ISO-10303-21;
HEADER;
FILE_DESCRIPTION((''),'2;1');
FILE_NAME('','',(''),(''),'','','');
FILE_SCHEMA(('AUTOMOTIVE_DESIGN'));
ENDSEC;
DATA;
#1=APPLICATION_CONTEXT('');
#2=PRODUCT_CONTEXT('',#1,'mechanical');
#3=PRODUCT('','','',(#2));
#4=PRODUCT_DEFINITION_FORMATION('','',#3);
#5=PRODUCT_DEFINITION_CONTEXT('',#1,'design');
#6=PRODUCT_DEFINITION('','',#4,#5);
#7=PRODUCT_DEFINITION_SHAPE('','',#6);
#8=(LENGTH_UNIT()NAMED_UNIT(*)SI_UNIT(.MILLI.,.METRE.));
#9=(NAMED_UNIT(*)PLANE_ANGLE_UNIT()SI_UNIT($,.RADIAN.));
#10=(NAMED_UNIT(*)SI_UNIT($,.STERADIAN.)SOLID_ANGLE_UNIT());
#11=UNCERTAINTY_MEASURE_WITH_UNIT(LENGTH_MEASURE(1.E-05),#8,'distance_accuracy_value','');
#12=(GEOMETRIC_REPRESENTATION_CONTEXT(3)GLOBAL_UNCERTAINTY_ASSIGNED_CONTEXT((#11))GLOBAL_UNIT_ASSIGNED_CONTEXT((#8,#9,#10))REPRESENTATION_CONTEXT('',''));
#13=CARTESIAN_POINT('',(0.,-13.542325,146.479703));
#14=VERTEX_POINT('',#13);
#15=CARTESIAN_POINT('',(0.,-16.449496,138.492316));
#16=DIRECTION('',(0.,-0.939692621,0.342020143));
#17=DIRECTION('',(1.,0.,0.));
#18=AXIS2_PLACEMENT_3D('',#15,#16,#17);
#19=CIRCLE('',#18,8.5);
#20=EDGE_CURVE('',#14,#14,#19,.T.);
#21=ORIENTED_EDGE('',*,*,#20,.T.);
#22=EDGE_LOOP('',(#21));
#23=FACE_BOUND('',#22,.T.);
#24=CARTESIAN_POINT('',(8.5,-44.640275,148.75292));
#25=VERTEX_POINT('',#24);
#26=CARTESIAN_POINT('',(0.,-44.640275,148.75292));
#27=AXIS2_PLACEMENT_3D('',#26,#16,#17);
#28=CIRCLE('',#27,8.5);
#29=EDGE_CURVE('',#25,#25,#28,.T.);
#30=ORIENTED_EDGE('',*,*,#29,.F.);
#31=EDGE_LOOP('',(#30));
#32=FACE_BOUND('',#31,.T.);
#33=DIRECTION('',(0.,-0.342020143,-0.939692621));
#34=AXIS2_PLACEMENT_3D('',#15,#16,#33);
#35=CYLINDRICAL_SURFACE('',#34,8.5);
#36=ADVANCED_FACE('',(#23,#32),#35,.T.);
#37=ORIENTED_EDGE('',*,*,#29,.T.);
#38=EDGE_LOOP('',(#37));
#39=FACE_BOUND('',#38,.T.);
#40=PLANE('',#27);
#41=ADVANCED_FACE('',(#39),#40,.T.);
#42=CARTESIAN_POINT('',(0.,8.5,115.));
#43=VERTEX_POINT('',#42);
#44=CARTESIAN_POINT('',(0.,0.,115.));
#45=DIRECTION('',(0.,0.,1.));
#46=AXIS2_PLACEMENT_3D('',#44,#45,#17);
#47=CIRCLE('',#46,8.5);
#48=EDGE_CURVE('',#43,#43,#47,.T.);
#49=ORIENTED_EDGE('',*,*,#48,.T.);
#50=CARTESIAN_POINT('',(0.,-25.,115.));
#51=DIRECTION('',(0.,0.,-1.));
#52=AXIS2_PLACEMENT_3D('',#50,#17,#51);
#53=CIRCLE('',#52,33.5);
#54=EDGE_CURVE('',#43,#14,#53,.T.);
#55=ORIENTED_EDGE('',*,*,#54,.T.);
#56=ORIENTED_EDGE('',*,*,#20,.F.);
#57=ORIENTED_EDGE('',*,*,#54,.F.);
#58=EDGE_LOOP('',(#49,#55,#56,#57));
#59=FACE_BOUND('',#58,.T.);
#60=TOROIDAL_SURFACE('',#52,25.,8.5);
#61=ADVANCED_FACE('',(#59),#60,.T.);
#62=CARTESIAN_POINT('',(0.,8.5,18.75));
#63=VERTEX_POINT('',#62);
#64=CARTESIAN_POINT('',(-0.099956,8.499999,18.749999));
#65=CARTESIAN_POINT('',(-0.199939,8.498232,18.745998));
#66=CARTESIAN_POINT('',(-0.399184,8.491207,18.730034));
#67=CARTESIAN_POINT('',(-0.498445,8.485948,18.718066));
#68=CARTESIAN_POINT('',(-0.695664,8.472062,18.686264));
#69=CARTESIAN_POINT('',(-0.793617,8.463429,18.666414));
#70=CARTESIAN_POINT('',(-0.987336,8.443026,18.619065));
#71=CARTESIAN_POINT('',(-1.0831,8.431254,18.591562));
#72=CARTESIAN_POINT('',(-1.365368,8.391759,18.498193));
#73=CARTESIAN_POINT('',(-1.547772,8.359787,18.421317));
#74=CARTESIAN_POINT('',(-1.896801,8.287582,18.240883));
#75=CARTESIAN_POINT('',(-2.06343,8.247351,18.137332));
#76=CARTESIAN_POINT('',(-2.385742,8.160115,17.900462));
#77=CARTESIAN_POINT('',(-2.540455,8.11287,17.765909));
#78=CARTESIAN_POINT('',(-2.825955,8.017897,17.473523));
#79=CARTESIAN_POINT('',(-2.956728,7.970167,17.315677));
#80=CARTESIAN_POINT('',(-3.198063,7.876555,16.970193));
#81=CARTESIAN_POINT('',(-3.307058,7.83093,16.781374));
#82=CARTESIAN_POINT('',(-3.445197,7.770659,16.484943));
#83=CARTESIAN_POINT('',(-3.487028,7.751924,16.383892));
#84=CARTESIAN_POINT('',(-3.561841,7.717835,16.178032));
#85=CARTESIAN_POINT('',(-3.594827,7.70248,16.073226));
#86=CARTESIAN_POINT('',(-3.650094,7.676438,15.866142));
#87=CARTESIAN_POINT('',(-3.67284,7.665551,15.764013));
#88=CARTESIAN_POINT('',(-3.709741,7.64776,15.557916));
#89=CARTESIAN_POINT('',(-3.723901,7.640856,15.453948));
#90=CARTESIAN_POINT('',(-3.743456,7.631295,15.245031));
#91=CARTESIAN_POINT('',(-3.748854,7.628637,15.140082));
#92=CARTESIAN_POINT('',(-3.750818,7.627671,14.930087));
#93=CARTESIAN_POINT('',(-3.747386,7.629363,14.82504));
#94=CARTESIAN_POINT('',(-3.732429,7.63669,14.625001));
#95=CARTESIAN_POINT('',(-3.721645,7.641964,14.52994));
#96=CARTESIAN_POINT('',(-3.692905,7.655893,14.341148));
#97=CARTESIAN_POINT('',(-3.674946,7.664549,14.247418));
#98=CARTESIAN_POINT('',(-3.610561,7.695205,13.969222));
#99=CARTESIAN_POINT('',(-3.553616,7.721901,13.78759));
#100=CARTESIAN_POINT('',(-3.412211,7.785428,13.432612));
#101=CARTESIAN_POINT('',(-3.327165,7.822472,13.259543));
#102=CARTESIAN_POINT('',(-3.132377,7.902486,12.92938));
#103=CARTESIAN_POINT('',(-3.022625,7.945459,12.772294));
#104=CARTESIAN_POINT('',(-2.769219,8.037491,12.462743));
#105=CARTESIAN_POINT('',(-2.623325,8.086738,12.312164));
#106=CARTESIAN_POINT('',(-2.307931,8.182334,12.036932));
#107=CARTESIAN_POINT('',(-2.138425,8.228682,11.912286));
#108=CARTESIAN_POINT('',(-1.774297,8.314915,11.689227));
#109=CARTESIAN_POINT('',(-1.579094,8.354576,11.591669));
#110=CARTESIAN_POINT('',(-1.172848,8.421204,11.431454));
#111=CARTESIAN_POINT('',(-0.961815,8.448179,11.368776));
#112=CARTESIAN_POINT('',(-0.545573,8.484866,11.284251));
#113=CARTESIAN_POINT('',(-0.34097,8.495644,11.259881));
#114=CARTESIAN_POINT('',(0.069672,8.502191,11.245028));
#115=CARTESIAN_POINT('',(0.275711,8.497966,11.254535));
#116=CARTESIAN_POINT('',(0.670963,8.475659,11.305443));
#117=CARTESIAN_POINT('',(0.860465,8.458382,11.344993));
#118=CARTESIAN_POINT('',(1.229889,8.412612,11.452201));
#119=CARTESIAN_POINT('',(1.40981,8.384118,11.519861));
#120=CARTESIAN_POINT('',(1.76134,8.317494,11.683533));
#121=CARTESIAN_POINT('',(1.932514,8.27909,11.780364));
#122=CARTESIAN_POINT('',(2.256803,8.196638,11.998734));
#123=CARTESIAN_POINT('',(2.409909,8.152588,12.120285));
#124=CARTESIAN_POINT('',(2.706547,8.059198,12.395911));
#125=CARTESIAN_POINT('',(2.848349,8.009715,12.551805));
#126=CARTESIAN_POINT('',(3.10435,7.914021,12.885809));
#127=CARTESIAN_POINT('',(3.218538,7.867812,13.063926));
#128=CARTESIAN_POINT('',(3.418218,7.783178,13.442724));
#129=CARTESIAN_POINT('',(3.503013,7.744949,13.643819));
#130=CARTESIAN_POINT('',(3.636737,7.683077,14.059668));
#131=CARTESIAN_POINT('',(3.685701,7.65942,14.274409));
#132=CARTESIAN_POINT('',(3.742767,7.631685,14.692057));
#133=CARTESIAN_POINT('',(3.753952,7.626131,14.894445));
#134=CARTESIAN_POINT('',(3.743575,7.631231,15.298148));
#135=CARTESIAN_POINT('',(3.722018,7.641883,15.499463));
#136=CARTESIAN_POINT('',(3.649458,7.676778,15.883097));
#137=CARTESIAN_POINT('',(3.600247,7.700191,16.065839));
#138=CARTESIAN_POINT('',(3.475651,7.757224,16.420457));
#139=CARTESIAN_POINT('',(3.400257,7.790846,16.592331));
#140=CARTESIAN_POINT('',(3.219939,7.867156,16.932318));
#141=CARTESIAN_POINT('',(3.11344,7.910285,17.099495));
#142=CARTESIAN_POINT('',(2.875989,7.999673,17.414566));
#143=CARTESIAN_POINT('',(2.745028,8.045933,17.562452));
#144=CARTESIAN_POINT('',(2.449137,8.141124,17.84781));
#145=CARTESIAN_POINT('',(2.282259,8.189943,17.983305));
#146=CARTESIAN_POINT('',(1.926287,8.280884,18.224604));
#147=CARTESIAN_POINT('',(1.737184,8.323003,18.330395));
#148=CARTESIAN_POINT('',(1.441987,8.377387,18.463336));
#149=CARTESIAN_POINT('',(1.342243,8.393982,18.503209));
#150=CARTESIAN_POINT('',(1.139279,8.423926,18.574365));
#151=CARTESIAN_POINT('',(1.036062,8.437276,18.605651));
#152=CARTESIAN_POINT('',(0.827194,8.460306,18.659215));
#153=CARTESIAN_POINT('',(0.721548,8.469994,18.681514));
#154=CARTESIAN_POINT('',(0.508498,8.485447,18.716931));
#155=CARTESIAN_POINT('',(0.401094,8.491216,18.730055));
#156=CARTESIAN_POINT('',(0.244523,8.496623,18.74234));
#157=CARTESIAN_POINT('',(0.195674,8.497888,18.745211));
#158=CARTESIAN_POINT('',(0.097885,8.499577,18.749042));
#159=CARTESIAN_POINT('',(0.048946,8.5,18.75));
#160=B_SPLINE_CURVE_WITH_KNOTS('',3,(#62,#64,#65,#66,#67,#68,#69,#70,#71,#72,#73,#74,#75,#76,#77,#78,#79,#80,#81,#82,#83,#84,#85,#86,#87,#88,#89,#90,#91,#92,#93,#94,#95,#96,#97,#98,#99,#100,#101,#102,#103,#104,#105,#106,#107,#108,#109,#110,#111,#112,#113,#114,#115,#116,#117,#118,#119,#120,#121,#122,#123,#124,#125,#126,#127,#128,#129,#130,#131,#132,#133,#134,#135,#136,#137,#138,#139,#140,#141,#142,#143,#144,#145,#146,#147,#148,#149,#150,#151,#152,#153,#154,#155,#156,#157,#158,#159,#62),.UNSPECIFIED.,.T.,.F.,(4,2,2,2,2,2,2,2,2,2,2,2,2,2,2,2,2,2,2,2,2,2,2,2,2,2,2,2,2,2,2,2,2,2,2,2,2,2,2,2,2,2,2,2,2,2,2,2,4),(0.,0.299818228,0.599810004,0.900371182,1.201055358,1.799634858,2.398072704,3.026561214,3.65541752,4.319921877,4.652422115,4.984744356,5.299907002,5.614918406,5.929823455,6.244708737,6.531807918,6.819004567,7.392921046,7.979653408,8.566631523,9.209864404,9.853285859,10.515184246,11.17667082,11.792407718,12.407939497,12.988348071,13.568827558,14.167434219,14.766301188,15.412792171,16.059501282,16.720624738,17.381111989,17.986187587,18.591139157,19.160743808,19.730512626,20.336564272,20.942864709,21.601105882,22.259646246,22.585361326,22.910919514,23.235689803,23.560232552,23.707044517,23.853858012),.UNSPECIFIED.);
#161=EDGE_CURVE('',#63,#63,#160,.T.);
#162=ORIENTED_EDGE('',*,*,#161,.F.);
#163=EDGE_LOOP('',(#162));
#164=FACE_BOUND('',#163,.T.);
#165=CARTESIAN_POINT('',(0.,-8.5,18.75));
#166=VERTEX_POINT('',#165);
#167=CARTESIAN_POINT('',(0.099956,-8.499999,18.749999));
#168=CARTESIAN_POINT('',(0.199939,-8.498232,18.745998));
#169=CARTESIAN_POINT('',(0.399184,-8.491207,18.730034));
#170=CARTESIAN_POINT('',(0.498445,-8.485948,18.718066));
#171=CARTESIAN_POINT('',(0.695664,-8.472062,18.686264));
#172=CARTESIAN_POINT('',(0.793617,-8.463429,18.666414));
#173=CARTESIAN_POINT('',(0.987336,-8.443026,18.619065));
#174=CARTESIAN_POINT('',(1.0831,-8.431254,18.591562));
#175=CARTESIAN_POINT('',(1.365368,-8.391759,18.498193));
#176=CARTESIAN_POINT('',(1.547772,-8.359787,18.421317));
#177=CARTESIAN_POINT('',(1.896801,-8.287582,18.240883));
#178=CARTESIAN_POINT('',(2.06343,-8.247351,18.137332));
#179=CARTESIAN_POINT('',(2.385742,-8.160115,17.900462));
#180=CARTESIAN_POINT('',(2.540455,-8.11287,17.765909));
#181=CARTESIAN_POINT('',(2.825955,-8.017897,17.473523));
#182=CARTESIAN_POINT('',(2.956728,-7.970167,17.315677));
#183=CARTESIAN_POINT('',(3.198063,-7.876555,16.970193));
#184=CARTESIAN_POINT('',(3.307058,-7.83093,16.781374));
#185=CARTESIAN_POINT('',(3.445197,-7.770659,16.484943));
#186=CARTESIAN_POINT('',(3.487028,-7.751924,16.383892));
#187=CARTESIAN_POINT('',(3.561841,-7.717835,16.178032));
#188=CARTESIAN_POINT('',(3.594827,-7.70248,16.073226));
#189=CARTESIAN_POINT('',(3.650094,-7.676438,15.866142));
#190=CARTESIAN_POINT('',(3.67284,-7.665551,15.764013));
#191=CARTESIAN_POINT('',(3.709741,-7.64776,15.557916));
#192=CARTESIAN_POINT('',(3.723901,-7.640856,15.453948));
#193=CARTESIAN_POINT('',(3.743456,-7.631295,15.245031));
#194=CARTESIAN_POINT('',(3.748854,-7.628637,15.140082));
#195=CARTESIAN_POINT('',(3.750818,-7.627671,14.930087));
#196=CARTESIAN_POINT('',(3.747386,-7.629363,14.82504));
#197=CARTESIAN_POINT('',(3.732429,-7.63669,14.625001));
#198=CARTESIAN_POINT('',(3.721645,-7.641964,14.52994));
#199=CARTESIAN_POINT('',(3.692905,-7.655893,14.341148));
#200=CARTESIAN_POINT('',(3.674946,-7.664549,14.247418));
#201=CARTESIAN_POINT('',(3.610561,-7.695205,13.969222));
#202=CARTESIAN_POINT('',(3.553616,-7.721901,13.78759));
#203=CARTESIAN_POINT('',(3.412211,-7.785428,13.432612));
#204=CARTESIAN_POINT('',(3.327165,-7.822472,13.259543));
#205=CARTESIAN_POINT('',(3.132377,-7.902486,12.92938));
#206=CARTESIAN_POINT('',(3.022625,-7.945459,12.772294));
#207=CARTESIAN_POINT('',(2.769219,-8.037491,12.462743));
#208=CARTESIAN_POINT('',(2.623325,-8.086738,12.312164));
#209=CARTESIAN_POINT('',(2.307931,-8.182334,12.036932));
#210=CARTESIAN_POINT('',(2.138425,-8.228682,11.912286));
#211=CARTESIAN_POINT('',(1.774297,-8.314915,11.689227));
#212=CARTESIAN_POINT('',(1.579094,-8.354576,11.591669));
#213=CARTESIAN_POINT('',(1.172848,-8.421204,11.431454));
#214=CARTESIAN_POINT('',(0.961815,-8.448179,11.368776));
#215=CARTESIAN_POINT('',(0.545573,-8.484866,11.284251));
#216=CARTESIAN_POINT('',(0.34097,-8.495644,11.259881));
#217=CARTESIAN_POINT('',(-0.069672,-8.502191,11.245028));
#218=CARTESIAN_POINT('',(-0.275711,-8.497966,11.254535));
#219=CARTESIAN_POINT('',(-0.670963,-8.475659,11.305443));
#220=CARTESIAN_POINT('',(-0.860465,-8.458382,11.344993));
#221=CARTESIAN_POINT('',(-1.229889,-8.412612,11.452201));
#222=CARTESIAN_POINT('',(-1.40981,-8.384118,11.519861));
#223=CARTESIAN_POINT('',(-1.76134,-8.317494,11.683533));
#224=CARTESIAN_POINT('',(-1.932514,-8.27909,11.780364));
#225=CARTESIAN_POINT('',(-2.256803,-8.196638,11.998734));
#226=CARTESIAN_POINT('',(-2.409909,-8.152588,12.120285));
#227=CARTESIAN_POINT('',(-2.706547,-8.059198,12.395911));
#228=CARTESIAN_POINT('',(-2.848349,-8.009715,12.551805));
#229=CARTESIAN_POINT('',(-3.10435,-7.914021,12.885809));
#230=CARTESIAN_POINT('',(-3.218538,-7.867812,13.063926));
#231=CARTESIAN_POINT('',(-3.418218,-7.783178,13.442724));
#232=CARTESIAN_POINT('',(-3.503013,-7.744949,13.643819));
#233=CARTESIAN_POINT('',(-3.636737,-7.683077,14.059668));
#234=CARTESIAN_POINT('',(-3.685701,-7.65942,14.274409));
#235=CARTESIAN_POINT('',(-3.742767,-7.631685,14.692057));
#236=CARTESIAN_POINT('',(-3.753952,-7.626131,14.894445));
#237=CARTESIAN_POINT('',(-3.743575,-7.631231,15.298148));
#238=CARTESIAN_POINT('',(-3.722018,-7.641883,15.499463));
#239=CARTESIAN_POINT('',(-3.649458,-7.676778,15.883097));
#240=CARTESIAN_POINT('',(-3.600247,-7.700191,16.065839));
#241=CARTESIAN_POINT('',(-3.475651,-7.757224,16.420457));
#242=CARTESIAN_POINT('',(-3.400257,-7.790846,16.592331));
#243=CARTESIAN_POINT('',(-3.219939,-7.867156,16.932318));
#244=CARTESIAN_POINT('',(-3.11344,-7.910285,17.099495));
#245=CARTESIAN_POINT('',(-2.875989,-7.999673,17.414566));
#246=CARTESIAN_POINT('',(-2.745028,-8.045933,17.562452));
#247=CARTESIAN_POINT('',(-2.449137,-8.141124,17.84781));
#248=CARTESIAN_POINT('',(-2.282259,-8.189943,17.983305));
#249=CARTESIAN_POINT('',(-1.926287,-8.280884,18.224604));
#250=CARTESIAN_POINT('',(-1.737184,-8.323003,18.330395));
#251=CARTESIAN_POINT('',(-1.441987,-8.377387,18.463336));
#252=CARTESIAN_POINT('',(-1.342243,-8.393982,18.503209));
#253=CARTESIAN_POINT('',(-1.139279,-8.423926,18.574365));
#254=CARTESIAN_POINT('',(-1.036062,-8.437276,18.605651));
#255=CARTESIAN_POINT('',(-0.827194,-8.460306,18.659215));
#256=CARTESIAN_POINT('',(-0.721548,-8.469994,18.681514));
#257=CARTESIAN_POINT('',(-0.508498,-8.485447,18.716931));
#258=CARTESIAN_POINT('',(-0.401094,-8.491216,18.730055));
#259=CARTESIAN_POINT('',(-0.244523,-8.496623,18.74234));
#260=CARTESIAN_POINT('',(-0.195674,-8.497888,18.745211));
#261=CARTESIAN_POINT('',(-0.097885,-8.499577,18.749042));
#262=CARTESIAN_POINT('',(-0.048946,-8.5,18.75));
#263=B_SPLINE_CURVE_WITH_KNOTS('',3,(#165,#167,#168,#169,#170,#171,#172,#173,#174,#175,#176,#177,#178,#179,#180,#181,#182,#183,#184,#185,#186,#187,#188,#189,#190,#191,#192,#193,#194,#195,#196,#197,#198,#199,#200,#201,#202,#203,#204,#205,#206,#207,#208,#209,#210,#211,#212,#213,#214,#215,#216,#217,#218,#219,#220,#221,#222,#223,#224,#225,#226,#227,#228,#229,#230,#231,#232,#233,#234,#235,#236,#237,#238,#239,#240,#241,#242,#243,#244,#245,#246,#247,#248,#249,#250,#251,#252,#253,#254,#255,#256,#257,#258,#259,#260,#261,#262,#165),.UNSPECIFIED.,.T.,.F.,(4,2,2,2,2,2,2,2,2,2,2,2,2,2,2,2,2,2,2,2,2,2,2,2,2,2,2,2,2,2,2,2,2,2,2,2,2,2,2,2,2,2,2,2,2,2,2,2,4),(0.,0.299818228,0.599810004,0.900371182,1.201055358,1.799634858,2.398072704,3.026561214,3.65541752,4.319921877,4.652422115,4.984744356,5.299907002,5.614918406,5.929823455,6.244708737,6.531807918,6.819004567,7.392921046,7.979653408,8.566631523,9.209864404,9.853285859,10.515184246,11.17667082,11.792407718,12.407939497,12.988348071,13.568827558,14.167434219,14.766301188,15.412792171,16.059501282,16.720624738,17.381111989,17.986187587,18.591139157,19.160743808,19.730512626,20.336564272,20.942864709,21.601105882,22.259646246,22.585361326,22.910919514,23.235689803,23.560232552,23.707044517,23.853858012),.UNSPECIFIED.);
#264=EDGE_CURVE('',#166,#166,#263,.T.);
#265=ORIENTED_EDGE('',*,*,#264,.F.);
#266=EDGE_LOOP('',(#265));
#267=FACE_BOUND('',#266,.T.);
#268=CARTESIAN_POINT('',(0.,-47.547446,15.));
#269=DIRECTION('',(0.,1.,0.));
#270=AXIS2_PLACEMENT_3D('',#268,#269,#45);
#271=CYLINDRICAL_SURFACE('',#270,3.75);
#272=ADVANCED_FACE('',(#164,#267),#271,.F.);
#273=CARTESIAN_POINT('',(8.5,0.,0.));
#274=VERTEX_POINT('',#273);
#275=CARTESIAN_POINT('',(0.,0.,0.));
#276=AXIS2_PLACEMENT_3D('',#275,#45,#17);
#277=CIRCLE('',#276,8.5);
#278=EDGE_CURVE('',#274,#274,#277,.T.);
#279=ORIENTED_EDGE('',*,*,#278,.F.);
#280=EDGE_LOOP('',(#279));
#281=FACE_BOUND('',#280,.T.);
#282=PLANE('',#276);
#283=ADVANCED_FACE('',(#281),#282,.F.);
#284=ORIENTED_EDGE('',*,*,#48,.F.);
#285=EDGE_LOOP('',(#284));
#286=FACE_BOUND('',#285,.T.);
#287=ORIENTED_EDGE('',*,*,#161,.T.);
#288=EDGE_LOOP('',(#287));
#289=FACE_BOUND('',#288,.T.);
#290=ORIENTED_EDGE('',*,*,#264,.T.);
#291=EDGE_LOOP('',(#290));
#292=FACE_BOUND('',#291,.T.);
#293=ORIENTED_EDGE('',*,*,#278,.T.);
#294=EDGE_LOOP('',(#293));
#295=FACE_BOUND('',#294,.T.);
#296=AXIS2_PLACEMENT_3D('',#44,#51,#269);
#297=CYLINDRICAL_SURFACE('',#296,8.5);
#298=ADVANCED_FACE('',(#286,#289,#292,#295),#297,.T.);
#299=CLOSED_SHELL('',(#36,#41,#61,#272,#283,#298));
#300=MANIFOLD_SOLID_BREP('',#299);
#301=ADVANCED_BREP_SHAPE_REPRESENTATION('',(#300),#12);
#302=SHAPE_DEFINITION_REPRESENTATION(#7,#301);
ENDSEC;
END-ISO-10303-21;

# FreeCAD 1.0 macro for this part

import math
import FreeCAD as App
import Part
import Sketcher
from FreeCAD import Vector
Q = App.Units.Quantity

doc = App.newDocument("Part")
body = doc.addObject("PartDesign::Body", "Body")

# Sketch on XY plane
sketch1 = body.newObject("Sketcher::SketchObject", "Sketch")
sketch1.AttachmentSupport = (doc.getObject("XY_Plane"), [""])
sketch1.MapMode = "FlatFace"
sketch1.addGeometry(Part.Circle(Vector(0, 0, 0), Vector(0, 0, 1), 8), False)
sketch1.addConstraint([
    Sketcher.Constraint("Coincident", 0, 3, -1, 1),
    Sketcher.Constraint("Diameter", 0, Q("17 mm")),
])

# Sketch on YZ plane
sketch2 = body.newObject("Sketcher::SketchObject", "Sketch001")
sketch2.AttachmentSupport = (doc.getObject("YZ_Plane"), [""])
sketch2.MapMode = "FlatFace"
sketch2.addGeometry([
    Part.LineSegment(Vector(0, 0, 0), Vector(0, 115, 0)),
    Part.ArcOfCircle(Part.Circle(Vector(-25, 115, 0), Vector(0, 0, 1), 25), math.radians(0), math.radians(70)),
    Part.LineSegment(Vector(-16, 138, 0), Vector(-45, 149, 0)),
], False)
sketch2.addConstraint([
    Sketcher.Constraint("Tangent", 0, 2, 1, 1),
    Sketcher.Constraint("Tangent", 1, 2, 2, 1),
    Sketcher.Constraint("Vertical", 0),
    Sketcher.Constraint("Coincident", 0, 1, -1, 1),
    Sketcher.Constraint("Radius", 1, Q("25 mm")),
    Sketcher.Constraint("DistanceY", 0, 1, 0, 2, Q("115 mm")),
    Sketcher.Constraint("Angle", 2, Q("160 deg")),
    Sketcher.Constraint("Distance", 2, Q("30 mm")),
])
doc.recompute()

additivepipe = body.newObject("PartDesign::AdditivePipe", "AdditivePipe")
additivepipe.Profile = sketch1
additivepipe.Spine = (sketch2, ["Edge1", "Edge2", "Edge3"])

# Sketch on XZ plane
sketch3 = body.newObject("Sketcher::SketchObject", "Sketch002")
sketch3.AttachmentSupport = (doc.getObject("XZ_Plane"), [""])
sketch3.MapMode = "FlatFace"
sketch3.addGeometry(Part.Circle(Vector(0, 15, 0), Vector(0, 0, 1), 3.8), False)
sketch3.addConstraint([
    Sketcher.Constraint("PointOnObject", 0, 3, -2),
    Sketcher.Constraint("Diameter", 0, Q("7.5 mm")),
    Sketcher.Constraint("DistanceY", -1, 1, 0, 3, Q("15 mm")),
])
pocket1 = body.newObject("PartDesign::Pocket", "Pocket")
pocket1.Profile = sketch3
pocket1.Type = "ThroughAll"
pocket1.Midplane = True

doc.recompute()
